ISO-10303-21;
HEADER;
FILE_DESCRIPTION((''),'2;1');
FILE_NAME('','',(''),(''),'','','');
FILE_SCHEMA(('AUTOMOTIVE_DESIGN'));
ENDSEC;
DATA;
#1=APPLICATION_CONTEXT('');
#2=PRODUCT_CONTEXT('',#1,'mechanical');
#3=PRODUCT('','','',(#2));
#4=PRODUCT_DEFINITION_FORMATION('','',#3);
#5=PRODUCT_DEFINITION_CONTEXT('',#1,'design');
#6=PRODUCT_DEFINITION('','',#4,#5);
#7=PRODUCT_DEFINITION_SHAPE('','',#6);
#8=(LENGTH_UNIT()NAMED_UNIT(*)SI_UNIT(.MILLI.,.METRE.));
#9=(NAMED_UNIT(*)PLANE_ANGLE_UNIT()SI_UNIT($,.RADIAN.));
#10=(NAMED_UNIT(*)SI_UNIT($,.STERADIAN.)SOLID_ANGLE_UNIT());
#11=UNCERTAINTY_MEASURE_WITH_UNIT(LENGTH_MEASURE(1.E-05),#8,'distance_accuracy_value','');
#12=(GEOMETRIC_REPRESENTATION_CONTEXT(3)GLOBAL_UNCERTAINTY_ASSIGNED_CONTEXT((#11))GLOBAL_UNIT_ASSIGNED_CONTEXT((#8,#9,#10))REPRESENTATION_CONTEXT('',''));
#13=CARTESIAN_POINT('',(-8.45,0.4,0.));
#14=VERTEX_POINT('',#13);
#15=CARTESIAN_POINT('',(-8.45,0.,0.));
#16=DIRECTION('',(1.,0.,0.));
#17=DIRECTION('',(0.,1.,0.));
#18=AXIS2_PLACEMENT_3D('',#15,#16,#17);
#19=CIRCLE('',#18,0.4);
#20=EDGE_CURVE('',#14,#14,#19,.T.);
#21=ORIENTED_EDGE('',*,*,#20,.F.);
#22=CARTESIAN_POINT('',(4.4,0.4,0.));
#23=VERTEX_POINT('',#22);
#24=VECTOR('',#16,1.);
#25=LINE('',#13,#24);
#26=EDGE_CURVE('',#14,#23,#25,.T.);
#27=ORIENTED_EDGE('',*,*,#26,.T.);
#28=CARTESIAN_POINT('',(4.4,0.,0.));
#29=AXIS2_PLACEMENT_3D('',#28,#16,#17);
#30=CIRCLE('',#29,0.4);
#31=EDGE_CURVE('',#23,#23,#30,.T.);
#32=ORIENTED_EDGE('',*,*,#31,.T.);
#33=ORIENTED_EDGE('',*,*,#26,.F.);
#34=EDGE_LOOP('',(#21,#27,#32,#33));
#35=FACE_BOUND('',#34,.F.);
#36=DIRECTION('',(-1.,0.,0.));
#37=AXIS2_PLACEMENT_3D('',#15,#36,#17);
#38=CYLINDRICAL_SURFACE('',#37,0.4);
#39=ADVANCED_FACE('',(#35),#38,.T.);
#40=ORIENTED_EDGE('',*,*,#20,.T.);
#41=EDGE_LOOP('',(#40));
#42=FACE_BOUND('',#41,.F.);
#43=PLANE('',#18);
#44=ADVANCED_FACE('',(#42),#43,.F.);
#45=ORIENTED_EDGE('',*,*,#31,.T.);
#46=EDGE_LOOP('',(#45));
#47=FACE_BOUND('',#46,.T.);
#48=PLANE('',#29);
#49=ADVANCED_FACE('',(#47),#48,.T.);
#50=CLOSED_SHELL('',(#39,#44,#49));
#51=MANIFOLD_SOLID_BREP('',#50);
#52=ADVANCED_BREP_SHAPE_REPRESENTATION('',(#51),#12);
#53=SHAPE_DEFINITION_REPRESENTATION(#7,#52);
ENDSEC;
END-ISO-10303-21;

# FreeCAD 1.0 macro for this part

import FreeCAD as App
import Part
import Sketcher
Q = App.Units.Quantity

doc = App.newDocument("Part")
params = doc.addObject("Spreadsheet::Sheet", "Params")
for row, (alias, value) in enumerate([
    ("sketch1_diameter", "0.8 mm"),
    ("pad1_length", "12.85 mm"),
], start=1):
    params.set(f"A{row}", alias)
    params.set(f"B{row}", "=" + value)
    params.setAlias(f"B{row}", alias)

body = doc.addObject("PartDesign::Body", "Body")

# Sketch on YZ plane
sketch1 = doc.addObject("Sketcher::SketchObject", "Sketch")
body.addObject(sketch1)
sketch1.AttachmentSupport = (doc.YZ_Plane, [""])
sketch1.MapMode = "FlatFace"
sketch1.AttachmentOffset = App.Placement(App.Vector(0, 0, -8.45), App.Rotation())
sketch1.addGeometry(Part.Circle(App.Vector(0, 0, 0), App.Vector(0, 0, 1), 0.4), False)
sketch1.addConstraint([
    Sketcher.Constraint("Coincident", 0, 3, -1, 1),
    Sketcher.Constraint("Diameter", 0, Q("0.8 mm")),
])
sketch1.setExpression("Constraints[1]", "Params.sketch1_diameter")
pad1 = doc.addObject("PartDesign::Pad", "Pad")
body.addObject(pad1)
pad1.Profile = sketch1
pad1.setExpression("Length", "Params.pad1_length")

doc.recompute()
